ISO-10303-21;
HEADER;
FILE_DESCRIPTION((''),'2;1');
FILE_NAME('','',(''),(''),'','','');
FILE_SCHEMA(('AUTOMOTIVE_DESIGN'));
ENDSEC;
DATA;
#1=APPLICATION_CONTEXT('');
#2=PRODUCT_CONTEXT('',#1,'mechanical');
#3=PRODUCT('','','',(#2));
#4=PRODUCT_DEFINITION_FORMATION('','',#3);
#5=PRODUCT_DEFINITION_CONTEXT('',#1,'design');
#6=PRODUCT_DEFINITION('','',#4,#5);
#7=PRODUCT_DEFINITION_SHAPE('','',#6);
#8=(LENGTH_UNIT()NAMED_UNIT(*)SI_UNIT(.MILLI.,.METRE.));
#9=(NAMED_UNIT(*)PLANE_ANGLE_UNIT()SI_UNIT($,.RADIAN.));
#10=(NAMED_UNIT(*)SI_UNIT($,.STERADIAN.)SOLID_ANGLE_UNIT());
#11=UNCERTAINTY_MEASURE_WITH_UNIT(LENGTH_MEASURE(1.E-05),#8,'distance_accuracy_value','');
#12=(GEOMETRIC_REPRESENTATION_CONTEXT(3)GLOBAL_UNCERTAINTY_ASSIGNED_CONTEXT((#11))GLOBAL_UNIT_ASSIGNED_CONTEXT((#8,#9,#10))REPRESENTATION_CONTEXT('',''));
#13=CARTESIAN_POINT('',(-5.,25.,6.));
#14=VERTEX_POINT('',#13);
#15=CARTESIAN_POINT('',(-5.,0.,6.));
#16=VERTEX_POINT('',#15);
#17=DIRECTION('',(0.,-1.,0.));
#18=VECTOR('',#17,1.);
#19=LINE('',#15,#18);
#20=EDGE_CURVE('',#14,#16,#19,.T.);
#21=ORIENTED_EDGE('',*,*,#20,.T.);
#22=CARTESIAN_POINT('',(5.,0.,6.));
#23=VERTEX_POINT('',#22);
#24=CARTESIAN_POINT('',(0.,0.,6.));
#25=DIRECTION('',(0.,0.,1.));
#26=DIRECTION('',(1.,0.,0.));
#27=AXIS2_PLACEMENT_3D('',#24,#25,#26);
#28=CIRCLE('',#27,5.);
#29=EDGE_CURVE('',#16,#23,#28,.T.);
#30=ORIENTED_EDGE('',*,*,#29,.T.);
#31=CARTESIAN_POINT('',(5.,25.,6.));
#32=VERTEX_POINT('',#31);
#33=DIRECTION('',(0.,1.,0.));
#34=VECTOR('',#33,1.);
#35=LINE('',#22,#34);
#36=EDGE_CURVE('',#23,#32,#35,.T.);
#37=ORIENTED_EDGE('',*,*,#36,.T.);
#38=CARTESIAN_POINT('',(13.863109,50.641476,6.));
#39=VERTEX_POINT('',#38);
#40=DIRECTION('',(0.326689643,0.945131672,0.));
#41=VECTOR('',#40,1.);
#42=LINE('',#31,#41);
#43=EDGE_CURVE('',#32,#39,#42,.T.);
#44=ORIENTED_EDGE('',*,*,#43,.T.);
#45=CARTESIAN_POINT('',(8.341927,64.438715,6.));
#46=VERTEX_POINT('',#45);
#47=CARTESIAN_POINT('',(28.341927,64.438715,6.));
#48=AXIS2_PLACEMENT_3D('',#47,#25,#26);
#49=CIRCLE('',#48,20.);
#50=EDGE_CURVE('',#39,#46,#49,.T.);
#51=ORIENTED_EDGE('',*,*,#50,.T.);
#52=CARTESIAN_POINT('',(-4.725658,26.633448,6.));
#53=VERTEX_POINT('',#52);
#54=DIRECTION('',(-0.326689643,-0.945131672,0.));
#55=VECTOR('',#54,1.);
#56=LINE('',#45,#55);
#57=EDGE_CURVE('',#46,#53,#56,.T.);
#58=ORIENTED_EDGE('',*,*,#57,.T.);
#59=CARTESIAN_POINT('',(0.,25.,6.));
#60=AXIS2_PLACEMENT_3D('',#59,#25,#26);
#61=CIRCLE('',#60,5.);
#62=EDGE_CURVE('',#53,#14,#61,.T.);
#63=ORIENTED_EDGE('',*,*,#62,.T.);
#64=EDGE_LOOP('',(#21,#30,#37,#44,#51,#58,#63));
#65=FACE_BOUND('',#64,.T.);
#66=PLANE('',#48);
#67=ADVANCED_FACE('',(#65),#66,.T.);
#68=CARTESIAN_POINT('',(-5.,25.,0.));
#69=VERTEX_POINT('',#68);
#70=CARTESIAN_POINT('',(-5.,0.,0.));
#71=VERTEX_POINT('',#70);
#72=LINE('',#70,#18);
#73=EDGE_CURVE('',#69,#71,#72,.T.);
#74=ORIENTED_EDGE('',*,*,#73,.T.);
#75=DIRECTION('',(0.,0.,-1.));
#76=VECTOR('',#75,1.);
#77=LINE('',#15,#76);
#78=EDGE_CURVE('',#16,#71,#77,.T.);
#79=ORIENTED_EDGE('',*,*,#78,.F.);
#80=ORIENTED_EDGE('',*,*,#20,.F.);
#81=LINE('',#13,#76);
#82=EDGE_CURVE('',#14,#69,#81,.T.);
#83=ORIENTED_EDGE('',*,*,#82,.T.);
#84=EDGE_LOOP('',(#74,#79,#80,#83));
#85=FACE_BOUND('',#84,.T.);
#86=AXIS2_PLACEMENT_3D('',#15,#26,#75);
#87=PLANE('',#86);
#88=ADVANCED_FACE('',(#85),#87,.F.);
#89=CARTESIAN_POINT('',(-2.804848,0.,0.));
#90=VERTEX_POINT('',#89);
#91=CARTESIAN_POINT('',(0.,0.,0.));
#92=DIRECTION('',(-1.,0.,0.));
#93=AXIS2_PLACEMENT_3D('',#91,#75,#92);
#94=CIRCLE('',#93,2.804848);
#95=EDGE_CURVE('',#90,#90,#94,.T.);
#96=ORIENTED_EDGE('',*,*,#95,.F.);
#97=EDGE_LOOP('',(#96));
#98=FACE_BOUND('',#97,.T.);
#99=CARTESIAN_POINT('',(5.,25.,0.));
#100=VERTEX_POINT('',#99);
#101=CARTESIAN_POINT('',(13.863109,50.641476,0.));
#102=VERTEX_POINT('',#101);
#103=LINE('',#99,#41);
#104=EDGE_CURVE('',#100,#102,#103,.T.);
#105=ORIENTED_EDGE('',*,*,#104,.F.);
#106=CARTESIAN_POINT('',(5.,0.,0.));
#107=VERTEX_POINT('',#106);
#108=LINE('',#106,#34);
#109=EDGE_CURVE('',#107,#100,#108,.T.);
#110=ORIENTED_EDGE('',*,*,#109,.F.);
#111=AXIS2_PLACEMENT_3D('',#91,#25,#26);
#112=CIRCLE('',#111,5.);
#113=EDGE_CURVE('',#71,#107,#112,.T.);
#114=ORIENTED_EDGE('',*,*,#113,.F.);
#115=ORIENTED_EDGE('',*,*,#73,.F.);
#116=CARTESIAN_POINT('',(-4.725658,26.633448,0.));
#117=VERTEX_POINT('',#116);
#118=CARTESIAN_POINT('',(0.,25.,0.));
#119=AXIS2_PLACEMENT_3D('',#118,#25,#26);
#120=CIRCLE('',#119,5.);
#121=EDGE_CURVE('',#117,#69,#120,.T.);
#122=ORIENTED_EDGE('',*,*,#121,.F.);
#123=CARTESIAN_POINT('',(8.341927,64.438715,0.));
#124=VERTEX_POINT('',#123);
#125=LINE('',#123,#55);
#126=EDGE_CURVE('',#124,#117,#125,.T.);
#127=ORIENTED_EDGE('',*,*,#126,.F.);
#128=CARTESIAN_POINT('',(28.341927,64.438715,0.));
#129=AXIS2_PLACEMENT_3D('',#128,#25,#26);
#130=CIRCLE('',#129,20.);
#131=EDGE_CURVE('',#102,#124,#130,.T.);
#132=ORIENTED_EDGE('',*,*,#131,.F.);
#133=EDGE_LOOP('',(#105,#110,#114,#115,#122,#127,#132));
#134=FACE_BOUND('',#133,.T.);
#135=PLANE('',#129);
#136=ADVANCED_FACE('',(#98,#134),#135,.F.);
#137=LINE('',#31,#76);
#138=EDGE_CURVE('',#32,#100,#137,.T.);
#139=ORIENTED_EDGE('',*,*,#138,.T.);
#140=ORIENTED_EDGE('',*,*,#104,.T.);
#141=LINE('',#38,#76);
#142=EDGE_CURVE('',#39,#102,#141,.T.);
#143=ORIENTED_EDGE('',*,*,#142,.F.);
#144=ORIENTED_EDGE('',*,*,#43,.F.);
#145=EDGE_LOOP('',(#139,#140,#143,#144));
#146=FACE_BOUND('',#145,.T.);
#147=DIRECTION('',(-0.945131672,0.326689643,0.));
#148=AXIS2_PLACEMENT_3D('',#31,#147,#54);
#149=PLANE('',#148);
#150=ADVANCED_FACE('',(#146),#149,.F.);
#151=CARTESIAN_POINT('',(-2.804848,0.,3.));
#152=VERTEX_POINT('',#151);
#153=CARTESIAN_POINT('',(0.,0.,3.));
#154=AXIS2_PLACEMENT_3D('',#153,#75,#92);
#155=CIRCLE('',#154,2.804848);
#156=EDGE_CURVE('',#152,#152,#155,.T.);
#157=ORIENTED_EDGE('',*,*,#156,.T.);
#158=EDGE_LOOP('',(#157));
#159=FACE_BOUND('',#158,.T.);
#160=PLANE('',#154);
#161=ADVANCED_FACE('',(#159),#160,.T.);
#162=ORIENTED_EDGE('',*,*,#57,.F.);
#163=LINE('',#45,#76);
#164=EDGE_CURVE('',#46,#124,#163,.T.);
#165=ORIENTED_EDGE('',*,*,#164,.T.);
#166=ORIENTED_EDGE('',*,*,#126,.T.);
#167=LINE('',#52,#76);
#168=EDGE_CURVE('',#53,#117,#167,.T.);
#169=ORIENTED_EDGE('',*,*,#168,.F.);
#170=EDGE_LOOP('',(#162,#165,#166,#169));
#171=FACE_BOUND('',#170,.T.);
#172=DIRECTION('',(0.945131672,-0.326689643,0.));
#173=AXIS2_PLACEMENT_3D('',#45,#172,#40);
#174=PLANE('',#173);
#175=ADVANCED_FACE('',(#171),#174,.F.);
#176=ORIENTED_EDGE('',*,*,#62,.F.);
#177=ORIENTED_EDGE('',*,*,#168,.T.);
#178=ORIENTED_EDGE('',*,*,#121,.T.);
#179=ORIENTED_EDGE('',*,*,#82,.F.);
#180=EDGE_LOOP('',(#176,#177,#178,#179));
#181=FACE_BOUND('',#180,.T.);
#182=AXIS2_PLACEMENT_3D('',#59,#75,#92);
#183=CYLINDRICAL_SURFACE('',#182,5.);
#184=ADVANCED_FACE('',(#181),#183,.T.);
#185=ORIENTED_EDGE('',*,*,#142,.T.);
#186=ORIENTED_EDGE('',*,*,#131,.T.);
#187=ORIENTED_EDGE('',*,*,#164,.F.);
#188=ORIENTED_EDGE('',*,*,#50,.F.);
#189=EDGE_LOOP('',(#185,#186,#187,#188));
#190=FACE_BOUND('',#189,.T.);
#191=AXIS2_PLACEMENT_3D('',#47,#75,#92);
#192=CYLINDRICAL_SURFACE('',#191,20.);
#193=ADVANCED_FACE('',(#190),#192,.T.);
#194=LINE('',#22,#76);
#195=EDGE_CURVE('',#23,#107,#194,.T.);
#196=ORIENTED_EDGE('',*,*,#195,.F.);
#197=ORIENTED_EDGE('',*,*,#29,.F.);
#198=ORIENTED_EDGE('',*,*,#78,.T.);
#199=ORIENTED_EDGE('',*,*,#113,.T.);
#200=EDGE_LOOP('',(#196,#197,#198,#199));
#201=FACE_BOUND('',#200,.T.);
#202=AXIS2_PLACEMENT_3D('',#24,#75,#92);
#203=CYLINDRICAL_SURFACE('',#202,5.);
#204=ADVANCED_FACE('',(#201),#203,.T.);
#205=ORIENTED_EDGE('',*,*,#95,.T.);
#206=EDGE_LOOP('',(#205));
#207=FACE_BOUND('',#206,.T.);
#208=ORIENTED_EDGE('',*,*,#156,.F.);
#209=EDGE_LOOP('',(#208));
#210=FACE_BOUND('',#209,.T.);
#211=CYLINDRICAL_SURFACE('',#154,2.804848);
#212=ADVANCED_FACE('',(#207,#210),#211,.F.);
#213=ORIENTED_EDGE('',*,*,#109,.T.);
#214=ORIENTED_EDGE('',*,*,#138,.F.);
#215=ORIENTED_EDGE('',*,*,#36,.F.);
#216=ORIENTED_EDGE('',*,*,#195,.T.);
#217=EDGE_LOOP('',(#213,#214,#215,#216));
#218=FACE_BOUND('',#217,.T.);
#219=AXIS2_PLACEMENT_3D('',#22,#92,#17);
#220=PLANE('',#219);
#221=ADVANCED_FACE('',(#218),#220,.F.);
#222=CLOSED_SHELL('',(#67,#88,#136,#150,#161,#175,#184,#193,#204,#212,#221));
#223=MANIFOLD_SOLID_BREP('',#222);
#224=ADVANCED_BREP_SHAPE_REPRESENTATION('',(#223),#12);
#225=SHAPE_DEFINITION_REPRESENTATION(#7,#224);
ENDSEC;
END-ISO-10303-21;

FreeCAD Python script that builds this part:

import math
import FreeCAD as App
import Part
import Sketcher
from FreeCAD import Vector
Q = App.Units.Quantity

doc = App.newDocument("Part")
body = doc.addObject("PartDesign::Body", "Body")

sketch1 = body.newObject("Sketcher::SketchObject", "Sketch")
sketch1.AttachmentSupport = (doc.getObject("XY_Plane"), [""])
sketch1.MapMode = "FlatFace"
sketch1.addGeometry(Part.LineSegment(Vector(-5, 25, 0), Vector(-5, 0, 0)), False)
sketch1.addGeometry(Part.ArcOfCircle(Part.Circle(Vector(0, 0, 0), Vector(0, 0, 1), 5), math.radians(180), math.radians(360)), False)
sketch1.addGeometry(Part.LineSegment(Vector(5, 0, 0), Vector(5, 25, 0)), False)
sketch1.addGeometry(Part.LineSegment(Vector(5, 25, 0), Vector(13.863109, 50.641476, 0)), False)
sketch1.addGeometry(Part.ArcOfCircle(Part.Circle(Vector(28.341927, 64.438715, 0), Vector(0, 0, 1), 20), math.radians(-136.380818), math.radians(180)), False)
sketch1.addGeometry(Part.LineSegment(Vector(8.341927, 64.438715, 0), Vector(-4.725658, 26.633448, 0)), False)
sketch1.addGeometry(Part.ArcOfCircle(Part.Circle(Vector(0, 25, 0), Vector(0, 0, 1), 5), math.radians(160.932027), math.radians(180)), False)
sketch1.addConstraint(Sketcher.Constraint("Coincident", 0, 2, 1, 1))
sketch1.addConstraint(Sketcher.Constraint("Coincident", 1, 2, 2, 1))
sketch1.addConstraint(Sketcher.Constraint("Coincident", 2, 2, 3, 1))
sketch1.addConstraint(Sketcher.Constraint("Coincident", 3, 2, 4, 1))
sketch1.addConstraint(Sketcher.Constraint("Coincident", 4, 2, 5, 1))
sketch1.addConstraint(Sketcher.Constraint("Coincident", 5, 2, 6, 1))
sketch1.addConstraint(Sketcher.Constraint("Coincident", 6, 2, 0, 1))
sketch1.addConstraint(Sketcher.Constraint("Vertical", 0))
sketch1.addConstraint(Sketcher.Constraint("Vertical", 2))
sketch1.addConstraint(Sketcher.Constraint("Coincident", 1, 3, -1, 1))
sketch1.addConstraint(Sketcher.Constraint("PointOnObject", 6, 3, -2))
sketch1.addConstraint(Sketcher.Constraint("PointOnObject", 0, 2, -1))
sketch1.addConstraint(Sketcher.Constraint("PointOnObject", 1, 2, -1))
sketch1.addConstraint(Sketcher.Constraint("Radius", 1, Q("5 mm")))
sketch1.addConstraint(Sketcher.Constraint("Radius", 4, Q("20 mm")))
sketch1.addConstraint(Sketcher.Constraint("DistanceY", 0, 2, 0, 1, Q("25 mm")))
sketch1.addConstraint(Sketcher.Constraint("DistanceY", 2, 1, 2, 2, Q("25 mm")))
sketch1.addConstraint(Sketcher.Constraint("Distance", 5, Q("40 mm")))
sketch1.addConstraint(Sketcher.Constraint("DistanceY", -1, 1, 6, 3, Q("25 mm")))
sketch1.addConstraint(Sketcher.Constraint("DistanceX", -1, 1, 3, 2, Q("13.863109 mm")))
sketch1.addConstraint(Sketcher.Constraint("DistanceX", 5, 2, -1, 1, Q("4.725658 mm")))
sketch1.addConstraint(Sketcher.Constraint("DistanceX", 3, 2, 4, 3, Q("14.478819 mm")))
sketch1.addConstraint(Sketcher.Constraint("DistanceY", 3, 2, 4, 2, Q("13.797239 mm")))
pad1 = body.newObject("PartDesign::Pad", "Pad")
pad1.Profile = sketch1
pad1.Length = 6

sketch2 = body.newObject("Sketcher::SketchObject", "Sketch001")
sketch2.AttachmentSupport = (doc.getObject("XY_Plane"), [""])
sketch2.MapMode = "FlatFace"
sketch2.addGeometry(Part.Circle(Vector(0, 0, 0), Vector(0, 0, 1), 2.8), False)
sketch2.addConstraint(Sketcher.Constraint("Coincident", 0, 3, -1, 1))
sketch2.addConstraint(Sketcher.Constraint("Diameter", 0, Q("5.609697 mm")))
pocket1 = body.newObject("PartDesign::Pocket", "Pocket")
pocket1.Profile = sketch2
pocket1.Length = 3
pocket1.Reversed = True

doc.recompute()
